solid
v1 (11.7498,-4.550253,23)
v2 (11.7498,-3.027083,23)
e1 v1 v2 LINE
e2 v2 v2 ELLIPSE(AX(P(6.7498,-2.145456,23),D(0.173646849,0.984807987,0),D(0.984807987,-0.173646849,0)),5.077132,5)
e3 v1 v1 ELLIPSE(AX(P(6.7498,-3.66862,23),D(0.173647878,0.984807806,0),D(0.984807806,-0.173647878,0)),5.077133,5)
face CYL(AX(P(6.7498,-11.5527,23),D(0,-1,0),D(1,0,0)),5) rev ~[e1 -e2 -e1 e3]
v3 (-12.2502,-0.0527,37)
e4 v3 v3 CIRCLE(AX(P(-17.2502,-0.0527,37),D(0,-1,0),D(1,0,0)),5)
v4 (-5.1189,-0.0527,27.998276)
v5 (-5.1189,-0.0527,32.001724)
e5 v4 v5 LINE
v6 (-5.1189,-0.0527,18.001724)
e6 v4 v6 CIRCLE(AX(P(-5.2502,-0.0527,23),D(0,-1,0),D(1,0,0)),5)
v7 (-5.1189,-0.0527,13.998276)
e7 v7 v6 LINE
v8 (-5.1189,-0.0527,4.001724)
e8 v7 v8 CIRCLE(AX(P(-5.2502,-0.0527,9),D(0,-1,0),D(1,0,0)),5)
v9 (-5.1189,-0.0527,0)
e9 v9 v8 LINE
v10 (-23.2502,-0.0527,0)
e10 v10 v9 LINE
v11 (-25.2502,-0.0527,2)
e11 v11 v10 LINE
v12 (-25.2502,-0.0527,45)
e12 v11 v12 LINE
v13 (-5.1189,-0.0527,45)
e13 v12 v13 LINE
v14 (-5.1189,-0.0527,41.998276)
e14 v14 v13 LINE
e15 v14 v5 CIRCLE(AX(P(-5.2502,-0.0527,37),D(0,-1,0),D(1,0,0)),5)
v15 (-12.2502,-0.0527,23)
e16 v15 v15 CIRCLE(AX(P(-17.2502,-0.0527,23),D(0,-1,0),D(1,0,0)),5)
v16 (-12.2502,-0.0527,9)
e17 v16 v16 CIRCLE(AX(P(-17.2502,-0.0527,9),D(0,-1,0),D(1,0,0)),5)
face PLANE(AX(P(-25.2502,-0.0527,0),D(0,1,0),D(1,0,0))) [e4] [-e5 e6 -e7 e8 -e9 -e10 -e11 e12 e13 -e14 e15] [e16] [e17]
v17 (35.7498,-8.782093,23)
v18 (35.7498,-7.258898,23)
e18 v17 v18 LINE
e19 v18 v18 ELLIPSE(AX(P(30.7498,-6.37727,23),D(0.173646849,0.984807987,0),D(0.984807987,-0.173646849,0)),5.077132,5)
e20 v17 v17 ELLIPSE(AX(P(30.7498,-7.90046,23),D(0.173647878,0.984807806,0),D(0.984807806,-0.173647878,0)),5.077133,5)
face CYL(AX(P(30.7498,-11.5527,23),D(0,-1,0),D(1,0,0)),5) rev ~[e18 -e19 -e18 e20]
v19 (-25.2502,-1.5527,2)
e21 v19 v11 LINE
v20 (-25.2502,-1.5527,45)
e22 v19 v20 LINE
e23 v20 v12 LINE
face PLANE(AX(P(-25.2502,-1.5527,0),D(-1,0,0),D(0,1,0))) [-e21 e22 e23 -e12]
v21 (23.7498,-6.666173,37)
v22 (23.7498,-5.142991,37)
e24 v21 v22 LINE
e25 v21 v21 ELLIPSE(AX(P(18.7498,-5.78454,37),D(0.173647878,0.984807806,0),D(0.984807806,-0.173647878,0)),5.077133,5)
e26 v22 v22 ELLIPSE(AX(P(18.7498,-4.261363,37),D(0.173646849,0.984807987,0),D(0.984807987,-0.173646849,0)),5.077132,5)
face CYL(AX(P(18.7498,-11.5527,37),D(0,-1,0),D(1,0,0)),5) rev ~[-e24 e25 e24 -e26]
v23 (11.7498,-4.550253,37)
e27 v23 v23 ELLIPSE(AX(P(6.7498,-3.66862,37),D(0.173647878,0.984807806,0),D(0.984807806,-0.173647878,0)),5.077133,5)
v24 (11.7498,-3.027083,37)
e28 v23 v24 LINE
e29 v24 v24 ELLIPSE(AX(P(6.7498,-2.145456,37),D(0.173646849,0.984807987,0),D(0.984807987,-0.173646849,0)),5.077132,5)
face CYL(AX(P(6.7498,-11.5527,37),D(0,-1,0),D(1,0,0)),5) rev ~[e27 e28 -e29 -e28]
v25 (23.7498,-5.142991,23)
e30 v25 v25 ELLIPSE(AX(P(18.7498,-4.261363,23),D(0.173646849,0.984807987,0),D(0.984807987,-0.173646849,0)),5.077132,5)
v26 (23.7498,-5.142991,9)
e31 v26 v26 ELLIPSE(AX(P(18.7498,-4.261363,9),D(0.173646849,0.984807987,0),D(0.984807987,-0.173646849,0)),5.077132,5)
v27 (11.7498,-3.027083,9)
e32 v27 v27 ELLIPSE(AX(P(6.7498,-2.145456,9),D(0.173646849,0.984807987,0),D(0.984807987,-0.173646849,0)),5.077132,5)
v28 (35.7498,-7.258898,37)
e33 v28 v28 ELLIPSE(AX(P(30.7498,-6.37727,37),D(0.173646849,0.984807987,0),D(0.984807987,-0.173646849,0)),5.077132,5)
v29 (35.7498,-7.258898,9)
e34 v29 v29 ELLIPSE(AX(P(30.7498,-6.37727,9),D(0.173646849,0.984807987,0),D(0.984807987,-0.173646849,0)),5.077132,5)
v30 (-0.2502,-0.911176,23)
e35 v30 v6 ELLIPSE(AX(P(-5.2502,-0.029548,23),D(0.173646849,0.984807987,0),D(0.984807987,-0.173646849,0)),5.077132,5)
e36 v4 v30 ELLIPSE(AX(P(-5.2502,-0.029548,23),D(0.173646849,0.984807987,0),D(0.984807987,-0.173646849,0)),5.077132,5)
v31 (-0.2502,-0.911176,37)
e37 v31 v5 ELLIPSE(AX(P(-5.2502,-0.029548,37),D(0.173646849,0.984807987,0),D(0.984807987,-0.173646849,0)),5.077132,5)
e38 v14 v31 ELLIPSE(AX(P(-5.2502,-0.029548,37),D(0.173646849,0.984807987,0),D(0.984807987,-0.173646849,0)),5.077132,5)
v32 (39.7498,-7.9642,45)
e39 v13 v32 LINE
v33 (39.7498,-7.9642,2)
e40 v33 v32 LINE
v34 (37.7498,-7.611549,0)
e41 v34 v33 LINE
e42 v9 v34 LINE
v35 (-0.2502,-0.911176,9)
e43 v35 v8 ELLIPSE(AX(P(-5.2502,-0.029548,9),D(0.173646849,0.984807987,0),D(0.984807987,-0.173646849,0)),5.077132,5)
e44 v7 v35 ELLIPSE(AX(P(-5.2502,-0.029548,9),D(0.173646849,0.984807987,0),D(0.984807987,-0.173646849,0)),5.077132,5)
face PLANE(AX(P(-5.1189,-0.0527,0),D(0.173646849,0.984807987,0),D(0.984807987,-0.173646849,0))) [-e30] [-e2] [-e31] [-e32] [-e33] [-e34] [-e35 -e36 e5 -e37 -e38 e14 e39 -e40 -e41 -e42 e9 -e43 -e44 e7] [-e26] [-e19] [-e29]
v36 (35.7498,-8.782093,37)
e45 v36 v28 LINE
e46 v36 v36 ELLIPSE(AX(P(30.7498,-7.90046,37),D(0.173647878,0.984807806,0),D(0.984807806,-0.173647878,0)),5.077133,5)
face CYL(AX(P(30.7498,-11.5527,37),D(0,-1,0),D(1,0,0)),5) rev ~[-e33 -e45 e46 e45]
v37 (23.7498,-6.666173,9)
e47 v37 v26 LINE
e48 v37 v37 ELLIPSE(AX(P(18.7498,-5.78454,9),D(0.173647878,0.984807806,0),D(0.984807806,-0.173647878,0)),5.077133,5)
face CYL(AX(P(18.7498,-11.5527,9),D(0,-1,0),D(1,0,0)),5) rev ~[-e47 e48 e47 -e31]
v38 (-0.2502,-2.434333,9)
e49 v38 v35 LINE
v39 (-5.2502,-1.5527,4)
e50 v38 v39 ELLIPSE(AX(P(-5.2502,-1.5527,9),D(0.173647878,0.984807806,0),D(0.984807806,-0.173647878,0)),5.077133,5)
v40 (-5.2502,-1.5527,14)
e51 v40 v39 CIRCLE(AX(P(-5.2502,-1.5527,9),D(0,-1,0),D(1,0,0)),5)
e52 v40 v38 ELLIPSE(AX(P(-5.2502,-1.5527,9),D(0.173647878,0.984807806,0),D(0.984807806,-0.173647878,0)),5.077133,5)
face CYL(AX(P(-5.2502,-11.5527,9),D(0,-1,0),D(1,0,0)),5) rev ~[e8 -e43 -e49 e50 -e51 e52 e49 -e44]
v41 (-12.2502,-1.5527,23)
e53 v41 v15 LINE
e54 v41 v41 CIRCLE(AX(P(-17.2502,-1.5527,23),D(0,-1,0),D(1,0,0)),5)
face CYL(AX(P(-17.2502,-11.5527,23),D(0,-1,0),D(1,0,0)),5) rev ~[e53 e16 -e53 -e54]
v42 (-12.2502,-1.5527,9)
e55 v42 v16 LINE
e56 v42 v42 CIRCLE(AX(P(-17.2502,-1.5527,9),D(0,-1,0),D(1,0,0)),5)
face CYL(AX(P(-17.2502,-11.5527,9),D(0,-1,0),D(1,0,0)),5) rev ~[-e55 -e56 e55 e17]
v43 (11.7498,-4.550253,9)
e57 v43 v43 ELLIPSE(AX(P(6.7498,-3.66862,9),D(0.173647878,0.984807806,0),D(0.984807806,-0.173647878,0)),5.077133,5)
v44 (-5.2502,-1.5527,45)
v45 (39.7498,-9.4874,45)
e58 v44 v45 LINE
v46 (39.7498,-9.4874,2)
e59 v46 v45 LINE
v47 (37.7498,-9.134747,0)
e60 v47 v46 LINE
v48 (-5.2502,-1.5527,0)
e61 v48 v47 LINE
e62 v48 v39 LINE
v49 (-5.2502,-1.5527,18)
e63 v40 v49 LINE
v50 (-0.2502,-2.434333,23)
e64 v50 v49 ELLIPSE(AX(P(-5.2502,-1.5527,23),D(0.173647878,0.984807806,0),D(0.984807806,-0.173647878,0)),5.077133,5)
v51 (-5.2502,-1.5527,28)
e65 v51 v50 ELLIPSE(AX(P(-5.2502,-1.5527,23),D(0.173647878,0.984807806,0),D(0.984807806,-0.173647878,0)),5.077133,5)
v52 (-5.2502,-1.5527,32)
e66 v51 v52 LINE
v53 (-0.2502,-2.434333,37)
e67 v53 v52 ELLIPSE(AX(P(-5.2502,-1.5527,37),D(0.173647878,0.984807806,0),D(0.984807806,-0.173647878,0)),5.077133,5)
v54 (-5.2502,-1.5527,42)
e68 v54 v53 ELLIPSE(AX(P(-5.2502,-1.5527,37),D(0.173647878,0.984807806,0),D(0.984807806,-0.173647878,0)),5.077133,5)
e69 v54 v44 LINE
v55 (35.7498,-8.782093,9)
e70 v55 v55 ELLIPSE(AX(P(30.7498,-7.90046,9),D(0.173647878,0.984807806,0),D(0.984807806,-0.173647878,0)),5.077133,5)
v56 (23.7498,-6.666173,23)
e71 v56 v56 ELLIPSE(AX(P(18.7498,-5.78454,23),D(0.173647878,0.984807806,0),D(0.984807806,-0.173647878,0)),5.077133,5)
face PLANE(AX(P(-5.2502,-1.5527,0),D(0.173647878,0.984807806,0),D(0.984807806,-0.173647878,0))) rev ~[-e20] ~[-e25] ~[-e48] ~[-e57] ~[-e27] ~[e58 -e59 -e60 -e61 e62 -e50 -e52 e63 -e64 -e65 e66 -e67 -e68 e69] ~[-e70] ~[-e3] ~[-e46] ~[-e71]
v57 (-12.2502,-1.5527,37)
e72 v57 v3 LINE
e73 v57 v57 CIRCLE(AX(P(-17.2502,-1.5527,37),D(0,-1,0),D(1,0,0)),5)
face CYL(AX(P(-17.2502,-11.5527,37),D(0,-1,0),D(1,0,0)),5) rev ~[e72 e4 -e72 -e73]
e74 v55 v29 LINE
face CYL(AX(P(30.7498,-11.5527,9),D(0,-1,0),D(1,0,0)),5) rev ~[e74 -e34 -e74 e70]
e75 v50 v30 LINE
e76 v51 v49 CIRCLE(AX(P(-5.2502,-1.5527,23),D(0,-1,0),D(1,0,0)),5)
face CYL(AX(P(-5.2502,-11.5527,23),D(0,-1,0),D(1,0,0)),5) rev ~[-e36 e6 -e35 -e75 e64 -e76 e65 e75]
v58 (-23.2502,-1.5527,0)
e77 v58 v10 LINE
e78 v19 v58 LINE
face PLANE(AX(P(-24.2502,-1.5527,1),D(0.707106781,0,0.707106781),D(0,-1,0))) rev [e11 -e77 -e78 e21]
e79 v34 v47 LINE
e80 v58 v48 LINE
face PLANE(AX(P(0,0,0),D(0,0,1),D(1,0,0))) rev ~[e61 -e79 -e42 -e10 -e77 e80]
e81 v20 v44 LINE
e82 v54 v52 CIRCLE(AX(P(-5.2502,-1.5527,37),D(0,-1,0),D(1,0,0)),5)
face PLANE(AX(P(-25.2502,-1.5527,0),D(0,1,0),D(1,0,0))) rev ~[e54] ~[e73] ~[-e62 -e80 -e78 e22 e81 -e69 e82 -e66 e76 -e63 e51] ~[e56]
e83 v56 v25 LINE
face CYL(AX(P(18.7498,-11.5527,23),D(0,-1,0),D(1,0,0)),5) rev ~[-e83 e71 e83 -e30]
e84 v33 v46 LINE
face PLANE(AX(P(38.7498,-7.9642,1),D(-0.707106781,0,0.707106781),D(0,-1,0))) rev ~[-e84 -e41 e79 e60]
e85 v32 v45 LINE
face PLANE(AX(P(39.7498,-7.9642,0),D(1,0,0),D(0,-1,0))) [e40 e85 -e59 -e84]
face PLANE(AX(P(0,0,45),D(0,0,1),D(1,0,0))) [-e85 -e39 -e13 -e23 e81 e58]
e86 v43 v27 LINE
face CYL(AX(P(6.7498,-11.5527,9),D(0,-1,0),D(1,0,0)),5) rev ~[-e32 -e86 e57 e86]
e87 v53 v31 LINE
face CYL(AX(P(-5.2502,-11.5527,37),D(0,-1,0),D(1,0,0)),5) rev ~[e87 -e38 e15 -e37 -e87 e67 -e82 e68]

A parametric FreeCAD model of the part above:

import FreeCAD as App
import Part
import Sketcher
from FreeCAD import Vector
Q = App.Units.Quantity


def edges_at(feature, points):
    """Names of the edges that pass closest to the given points."""
    edges = feature.Shape.Edges
    near = lambda p: min(range(len(edges)), key=lambda i: edges[i].distToShape(Part.Vertex(*p))[0])
    return sorted({f"Edge{near(p) + 1}" for p in points})

doc = App.newDocument("Part")
params = doc.addObject("Spreadsheet::Sheet", "Params")
for row, (alias, value) in enumerate([
    ("sketch1_width", "20 mm"),
    ("sketch1_height", "1.5 mm"),
    ("pad1_length", "45 mm"),
    ("sketch2_diameter", "10 mm"),
    ("chamfer_size", "2 mm"),
], start=1):
    params.set(f"A{row}", alias)
    params.set(f"B{row}", "=" + value)
    params.setAlias(f"B{row}", alias)

body = doc.addObject("PartDesign::Body", "Body")

# Sketch on XY plane
sketch1 = body.newObject("Sketcher::SketchObject", "Sketch")
sketch1.AttachmentSupport = (doc.getObject("XY_Plane"), [""])
sketch1.MapMode = "FlatFace"
sketch1.addGeometry([
    Part.LineSegment(Vector(-25.2502, -0.0527, 0), Vector(-25.2502, -1.5527, 0)),  # 0
    Part.LineSegment(Vector(-25.2502, -1.5527, 0), Vector(-5.2502, -1.5527, 0)),  # 1
    Part.LineSegment(Vector(-5.2502, -1.5527, 0), Vector(39.7498, -9.4874, 0)),  # 2
    Part.LineSegment(Vector(39.7498, -9.4874, 0), Vector(39.7498, -7.9642, 0)),  # 3
    Part.LineSegment(Vector(39.7498, -7.9642, 0), Vector(-5.1189, -0.0527, 0)),  # 4
    Part.LineSegment(Vector(-5.1189, -0.0527, 0), Vector(-25.2502, -0.0527, 0)),  # 5
], False)
sketch1.addConstraint([
    Sketcher.Constraint("Coincident", 0, 2, 1, 1),
    Sketcher.Constraint("Coincident", 1, 2, 2, 1),
    Sketcher.Constraint("Coincident", 2, 2, 3, 1),
    Sketcher.Constraint("Coincident", 3, 2, 4, 1),
    Sketcher.Constraint("Coincident", 4, 2, 5, 1),
    Sketcher.Constraint("Coincident", 5, 2, 0, 1),
    Sketcher.Constraint("Vertical", 0),
    Sketcher.Constraint("Horizontal", 1),
    Sketcher.Constraint("Vertical", 3),
    Sketcher.Constraint("Horizontal", 5),
    Sketcher.Constraint("Parallel", 2, 4),
    Sketcher.Constraint("DistanceX", 1, 1, 1, 2, 20.0),
    Sketcher.Constraint("Angle", 4, Q("170 deg")),
    Sketcher.Constraint("DistanceY", 0, 2, 0, 1, 1.5),
    Sketcher.Constraint("DistanceX", 0, 2, 2, 2, 65.0),
    Sketcher.Constraint("DistanceX", 5, 2, 5, 1, 20.1313),
    Sketcher.Constraint("DistanceX", 4, 2, -1, 1, 5.119),
    Sketcher.Constraint("DistanceY", 0, 2, -1, 1, 1.5527),
])
sketch1.setExpression("Constraints[11]", "Params.sketch1_width")
sketch1.setExpression("Constraints[13]", "Params.sketch1_height")
pad1 = body.newObject("PartDesign::Pad", "Pad")
pad1.Profile = sketch1
pad1.setExpression("Length", "Params.pad1_length")

# Sketch on XZ plane
sketch2 = body.newObject("Sketcher::SketchObject", "Sketch001")
sketch2.AttachmentSupport = (doc.getObject("XZ_Plane"), [""])
sketch2.MapMode = "FlatFace"
sketch2.AttachmentOffset = App.Placement(Vector(0, 0, 11.5527), App.Rotation())
sketch2.addGeometry([
    Part.Circle(Vector(-5.2502, 9, 0), Vector(0, 0, 1), 5),  # 0
    Part.Circle(Vector(-5.2502, 23, 0), Vector(0, 0, 1), 5),  # 1
    Part.Circle(Vector(-5.2502, 37, 0), Vector(0, 0, 1), 5),  # 2
    Part.Circle(Vector(-17.2502, 37, 0), Vector(0, 0, 1), 5),  # 3
    Part.Circle(Vector(-17.2502, 23, 0), Vector(0, 0, 1), 5),  # 4
    Part.Circle(Vector(-17.2502, 9, 0), Vector(0, 0, 1), 5),  # 5
    Part.Circle(Vector(6.7498, 37, 0), Vector(0, 0, 1), 5),  # 6
    Part.Circle(Vector(6.7498, 23, 0), Vector(0, 0, 1), 5),  # 7
    Part.Circle(Vector(6.7498, 9, 0), Vector(0, 0, 1), 5),  # 8
    Part.Circle(Vector(18.7498, 37, 0), Vector(0, 0, 1), 5),  # 9
    Part.Circle(Vector(18.7498, 23, 0), Vector(0, 0, 1), 5),  # 10
    Part.Circle(Vector(18.7498, 9, 0), Vector(0, 0, 1), 5),  # 11
    Part.Circle(Vector(30.7498, 37, 0), Vector(0, 0, 1), 5),  # 12
    Part.Circle(Vector(30.7498, 23, 0), Vector(0, 0, 1), 5),  # 13
    Part.Circle(Vector(30.7498, 9, 0), Vector(0, 0, 1), 5),  # 14
], False)
sketch2.addConstraint([
    Sketcher.Constraint("Equal", 0, 1),
    Sketcher.Constraint("Equal", 1, 2),
    Sketcher.Constraint("Equal", 2, 3),
    Sketcher.Constraint("Equal", 3, 4),
    Sketcher.Constraint("Equal", 4, 5),
    Sketcher.Constraint("Equal", 5, 6),
    Sketcher.Constraint("Equal", 6, 7),
    Sketcher.Constraint("Equal", 7, 8),
    Sketcher.Constraint("Equal", 8, 9),
    Sketcher.Constraint("Equal", 9, 10),
    Sketcher.Constraint("Equal", 10, 11),
    Sketcher.Constraint("Equal", 11, 12),
    Sketcher.Constraint("Equal", 12, 13),
    Sketcher.Constraint("Equal", 13, 14),
    Sketcher.Constraint("Horizontal", 2, 3, 3, 3),
    Sketcher.Constraint("Horizontal", 1, 3, 4, 3),
    Sketcher.Constraint("Horizontal", 0, 3, 5, 3),
    Sketcher.Constraint("Horizontal", 3, 3, 6, 3),
    Sketcher.Constraint("Horizontal", 4, 3, 7, 3),
    Sketcher.Constraint("Horizontal", 5, 3, 8, 3),
    Sketcher.Constraint("Horizontal", 6, 3, 9, 3),
    Sketcher.Constraint("Horizontal", 7, 3, 10, 3),
    Sketcher.Constraint("Horizontal", 8, 3, 11, 3),
    Sketcher.Constraint("Horizontal", 9, 3, 12, 3),
    Sketcher.Constraint("Horizontal", 10, 3, 13, 3),
    Sketcher.Constraint("Horizontal", 11, 3, 14, 3),
    Sketcher.Constraint("Vertical", 0, 3, 1, 3),
    Sketcher.Constraint("Vertical", 1, 3, 2, 3),
    Sketcher.Constraint("Vertical", 3, 3, 4, 3),
    Sketcher.Constraint("Vertical", 4, 3, 5, 3),
    Sketcher.Constraint("Vertical", 6, 3, 7, 3),
    Sketcher.Constraint("Vertical", 7, 3, 8, 3),
    Sketcher.Constraint("Vertical", 9, 3, 10, 3),
    Sketcher.Constraint("Vertical", 10, 3, 11, 3),
    Sketcher.Constraint("Vertical", 12, 3, 13, 3),
    Sketcher.Constraint("Vertical", 13, 3, 14, 3),
    Sketcher.Constraint("Diameter", 0, 10.0),
    Sketcher.Constraint("DistanceY", 0, 3, 1, 3, 14.0),
    Sketcher.Constraint("DistanceY", 1, 3, 2, 3, 14.0),
    Sketcher.Constraint("DistanceX", 3, 3, 2, 3, 12.0),
    Sketcher.Constraint("DistanceX", 2, 3, 6, 3, 12.0),
    Sketcher.Constraint("DistanceX", 6, 3, 9, 3, 12.0),
    Sketcher.Constraint("DistanceX", 9, 3, 12, 3, 12.0),
    Sketcher.Constraint("DistanceY", -1, 1, 0, 3, 9.0),
    Sketcher.Constraint("DistanceX", 0, 3, -1, 1, 5.2502),
])
sketch2.setExpression("Constraints[36]", "Params.sketch2_diameter")
pocket1 = body.newObject("PartDesign::Pocket", "Pocket")
pocket1.Profile = sketch2
pocket1.Type = "ThroughAll"
doc.recompute()

chamfer = body.newObject("PartDesign::Chamfer", "Chamfer")
chamfer.Base = (pocket1, edges_at(pocket1, [(-25.25, -0.803, 0), (39.75, -8.726, 0)]))
chamfer.setExpression("Size", "Params.chamfer_size")

doc.recompute()
